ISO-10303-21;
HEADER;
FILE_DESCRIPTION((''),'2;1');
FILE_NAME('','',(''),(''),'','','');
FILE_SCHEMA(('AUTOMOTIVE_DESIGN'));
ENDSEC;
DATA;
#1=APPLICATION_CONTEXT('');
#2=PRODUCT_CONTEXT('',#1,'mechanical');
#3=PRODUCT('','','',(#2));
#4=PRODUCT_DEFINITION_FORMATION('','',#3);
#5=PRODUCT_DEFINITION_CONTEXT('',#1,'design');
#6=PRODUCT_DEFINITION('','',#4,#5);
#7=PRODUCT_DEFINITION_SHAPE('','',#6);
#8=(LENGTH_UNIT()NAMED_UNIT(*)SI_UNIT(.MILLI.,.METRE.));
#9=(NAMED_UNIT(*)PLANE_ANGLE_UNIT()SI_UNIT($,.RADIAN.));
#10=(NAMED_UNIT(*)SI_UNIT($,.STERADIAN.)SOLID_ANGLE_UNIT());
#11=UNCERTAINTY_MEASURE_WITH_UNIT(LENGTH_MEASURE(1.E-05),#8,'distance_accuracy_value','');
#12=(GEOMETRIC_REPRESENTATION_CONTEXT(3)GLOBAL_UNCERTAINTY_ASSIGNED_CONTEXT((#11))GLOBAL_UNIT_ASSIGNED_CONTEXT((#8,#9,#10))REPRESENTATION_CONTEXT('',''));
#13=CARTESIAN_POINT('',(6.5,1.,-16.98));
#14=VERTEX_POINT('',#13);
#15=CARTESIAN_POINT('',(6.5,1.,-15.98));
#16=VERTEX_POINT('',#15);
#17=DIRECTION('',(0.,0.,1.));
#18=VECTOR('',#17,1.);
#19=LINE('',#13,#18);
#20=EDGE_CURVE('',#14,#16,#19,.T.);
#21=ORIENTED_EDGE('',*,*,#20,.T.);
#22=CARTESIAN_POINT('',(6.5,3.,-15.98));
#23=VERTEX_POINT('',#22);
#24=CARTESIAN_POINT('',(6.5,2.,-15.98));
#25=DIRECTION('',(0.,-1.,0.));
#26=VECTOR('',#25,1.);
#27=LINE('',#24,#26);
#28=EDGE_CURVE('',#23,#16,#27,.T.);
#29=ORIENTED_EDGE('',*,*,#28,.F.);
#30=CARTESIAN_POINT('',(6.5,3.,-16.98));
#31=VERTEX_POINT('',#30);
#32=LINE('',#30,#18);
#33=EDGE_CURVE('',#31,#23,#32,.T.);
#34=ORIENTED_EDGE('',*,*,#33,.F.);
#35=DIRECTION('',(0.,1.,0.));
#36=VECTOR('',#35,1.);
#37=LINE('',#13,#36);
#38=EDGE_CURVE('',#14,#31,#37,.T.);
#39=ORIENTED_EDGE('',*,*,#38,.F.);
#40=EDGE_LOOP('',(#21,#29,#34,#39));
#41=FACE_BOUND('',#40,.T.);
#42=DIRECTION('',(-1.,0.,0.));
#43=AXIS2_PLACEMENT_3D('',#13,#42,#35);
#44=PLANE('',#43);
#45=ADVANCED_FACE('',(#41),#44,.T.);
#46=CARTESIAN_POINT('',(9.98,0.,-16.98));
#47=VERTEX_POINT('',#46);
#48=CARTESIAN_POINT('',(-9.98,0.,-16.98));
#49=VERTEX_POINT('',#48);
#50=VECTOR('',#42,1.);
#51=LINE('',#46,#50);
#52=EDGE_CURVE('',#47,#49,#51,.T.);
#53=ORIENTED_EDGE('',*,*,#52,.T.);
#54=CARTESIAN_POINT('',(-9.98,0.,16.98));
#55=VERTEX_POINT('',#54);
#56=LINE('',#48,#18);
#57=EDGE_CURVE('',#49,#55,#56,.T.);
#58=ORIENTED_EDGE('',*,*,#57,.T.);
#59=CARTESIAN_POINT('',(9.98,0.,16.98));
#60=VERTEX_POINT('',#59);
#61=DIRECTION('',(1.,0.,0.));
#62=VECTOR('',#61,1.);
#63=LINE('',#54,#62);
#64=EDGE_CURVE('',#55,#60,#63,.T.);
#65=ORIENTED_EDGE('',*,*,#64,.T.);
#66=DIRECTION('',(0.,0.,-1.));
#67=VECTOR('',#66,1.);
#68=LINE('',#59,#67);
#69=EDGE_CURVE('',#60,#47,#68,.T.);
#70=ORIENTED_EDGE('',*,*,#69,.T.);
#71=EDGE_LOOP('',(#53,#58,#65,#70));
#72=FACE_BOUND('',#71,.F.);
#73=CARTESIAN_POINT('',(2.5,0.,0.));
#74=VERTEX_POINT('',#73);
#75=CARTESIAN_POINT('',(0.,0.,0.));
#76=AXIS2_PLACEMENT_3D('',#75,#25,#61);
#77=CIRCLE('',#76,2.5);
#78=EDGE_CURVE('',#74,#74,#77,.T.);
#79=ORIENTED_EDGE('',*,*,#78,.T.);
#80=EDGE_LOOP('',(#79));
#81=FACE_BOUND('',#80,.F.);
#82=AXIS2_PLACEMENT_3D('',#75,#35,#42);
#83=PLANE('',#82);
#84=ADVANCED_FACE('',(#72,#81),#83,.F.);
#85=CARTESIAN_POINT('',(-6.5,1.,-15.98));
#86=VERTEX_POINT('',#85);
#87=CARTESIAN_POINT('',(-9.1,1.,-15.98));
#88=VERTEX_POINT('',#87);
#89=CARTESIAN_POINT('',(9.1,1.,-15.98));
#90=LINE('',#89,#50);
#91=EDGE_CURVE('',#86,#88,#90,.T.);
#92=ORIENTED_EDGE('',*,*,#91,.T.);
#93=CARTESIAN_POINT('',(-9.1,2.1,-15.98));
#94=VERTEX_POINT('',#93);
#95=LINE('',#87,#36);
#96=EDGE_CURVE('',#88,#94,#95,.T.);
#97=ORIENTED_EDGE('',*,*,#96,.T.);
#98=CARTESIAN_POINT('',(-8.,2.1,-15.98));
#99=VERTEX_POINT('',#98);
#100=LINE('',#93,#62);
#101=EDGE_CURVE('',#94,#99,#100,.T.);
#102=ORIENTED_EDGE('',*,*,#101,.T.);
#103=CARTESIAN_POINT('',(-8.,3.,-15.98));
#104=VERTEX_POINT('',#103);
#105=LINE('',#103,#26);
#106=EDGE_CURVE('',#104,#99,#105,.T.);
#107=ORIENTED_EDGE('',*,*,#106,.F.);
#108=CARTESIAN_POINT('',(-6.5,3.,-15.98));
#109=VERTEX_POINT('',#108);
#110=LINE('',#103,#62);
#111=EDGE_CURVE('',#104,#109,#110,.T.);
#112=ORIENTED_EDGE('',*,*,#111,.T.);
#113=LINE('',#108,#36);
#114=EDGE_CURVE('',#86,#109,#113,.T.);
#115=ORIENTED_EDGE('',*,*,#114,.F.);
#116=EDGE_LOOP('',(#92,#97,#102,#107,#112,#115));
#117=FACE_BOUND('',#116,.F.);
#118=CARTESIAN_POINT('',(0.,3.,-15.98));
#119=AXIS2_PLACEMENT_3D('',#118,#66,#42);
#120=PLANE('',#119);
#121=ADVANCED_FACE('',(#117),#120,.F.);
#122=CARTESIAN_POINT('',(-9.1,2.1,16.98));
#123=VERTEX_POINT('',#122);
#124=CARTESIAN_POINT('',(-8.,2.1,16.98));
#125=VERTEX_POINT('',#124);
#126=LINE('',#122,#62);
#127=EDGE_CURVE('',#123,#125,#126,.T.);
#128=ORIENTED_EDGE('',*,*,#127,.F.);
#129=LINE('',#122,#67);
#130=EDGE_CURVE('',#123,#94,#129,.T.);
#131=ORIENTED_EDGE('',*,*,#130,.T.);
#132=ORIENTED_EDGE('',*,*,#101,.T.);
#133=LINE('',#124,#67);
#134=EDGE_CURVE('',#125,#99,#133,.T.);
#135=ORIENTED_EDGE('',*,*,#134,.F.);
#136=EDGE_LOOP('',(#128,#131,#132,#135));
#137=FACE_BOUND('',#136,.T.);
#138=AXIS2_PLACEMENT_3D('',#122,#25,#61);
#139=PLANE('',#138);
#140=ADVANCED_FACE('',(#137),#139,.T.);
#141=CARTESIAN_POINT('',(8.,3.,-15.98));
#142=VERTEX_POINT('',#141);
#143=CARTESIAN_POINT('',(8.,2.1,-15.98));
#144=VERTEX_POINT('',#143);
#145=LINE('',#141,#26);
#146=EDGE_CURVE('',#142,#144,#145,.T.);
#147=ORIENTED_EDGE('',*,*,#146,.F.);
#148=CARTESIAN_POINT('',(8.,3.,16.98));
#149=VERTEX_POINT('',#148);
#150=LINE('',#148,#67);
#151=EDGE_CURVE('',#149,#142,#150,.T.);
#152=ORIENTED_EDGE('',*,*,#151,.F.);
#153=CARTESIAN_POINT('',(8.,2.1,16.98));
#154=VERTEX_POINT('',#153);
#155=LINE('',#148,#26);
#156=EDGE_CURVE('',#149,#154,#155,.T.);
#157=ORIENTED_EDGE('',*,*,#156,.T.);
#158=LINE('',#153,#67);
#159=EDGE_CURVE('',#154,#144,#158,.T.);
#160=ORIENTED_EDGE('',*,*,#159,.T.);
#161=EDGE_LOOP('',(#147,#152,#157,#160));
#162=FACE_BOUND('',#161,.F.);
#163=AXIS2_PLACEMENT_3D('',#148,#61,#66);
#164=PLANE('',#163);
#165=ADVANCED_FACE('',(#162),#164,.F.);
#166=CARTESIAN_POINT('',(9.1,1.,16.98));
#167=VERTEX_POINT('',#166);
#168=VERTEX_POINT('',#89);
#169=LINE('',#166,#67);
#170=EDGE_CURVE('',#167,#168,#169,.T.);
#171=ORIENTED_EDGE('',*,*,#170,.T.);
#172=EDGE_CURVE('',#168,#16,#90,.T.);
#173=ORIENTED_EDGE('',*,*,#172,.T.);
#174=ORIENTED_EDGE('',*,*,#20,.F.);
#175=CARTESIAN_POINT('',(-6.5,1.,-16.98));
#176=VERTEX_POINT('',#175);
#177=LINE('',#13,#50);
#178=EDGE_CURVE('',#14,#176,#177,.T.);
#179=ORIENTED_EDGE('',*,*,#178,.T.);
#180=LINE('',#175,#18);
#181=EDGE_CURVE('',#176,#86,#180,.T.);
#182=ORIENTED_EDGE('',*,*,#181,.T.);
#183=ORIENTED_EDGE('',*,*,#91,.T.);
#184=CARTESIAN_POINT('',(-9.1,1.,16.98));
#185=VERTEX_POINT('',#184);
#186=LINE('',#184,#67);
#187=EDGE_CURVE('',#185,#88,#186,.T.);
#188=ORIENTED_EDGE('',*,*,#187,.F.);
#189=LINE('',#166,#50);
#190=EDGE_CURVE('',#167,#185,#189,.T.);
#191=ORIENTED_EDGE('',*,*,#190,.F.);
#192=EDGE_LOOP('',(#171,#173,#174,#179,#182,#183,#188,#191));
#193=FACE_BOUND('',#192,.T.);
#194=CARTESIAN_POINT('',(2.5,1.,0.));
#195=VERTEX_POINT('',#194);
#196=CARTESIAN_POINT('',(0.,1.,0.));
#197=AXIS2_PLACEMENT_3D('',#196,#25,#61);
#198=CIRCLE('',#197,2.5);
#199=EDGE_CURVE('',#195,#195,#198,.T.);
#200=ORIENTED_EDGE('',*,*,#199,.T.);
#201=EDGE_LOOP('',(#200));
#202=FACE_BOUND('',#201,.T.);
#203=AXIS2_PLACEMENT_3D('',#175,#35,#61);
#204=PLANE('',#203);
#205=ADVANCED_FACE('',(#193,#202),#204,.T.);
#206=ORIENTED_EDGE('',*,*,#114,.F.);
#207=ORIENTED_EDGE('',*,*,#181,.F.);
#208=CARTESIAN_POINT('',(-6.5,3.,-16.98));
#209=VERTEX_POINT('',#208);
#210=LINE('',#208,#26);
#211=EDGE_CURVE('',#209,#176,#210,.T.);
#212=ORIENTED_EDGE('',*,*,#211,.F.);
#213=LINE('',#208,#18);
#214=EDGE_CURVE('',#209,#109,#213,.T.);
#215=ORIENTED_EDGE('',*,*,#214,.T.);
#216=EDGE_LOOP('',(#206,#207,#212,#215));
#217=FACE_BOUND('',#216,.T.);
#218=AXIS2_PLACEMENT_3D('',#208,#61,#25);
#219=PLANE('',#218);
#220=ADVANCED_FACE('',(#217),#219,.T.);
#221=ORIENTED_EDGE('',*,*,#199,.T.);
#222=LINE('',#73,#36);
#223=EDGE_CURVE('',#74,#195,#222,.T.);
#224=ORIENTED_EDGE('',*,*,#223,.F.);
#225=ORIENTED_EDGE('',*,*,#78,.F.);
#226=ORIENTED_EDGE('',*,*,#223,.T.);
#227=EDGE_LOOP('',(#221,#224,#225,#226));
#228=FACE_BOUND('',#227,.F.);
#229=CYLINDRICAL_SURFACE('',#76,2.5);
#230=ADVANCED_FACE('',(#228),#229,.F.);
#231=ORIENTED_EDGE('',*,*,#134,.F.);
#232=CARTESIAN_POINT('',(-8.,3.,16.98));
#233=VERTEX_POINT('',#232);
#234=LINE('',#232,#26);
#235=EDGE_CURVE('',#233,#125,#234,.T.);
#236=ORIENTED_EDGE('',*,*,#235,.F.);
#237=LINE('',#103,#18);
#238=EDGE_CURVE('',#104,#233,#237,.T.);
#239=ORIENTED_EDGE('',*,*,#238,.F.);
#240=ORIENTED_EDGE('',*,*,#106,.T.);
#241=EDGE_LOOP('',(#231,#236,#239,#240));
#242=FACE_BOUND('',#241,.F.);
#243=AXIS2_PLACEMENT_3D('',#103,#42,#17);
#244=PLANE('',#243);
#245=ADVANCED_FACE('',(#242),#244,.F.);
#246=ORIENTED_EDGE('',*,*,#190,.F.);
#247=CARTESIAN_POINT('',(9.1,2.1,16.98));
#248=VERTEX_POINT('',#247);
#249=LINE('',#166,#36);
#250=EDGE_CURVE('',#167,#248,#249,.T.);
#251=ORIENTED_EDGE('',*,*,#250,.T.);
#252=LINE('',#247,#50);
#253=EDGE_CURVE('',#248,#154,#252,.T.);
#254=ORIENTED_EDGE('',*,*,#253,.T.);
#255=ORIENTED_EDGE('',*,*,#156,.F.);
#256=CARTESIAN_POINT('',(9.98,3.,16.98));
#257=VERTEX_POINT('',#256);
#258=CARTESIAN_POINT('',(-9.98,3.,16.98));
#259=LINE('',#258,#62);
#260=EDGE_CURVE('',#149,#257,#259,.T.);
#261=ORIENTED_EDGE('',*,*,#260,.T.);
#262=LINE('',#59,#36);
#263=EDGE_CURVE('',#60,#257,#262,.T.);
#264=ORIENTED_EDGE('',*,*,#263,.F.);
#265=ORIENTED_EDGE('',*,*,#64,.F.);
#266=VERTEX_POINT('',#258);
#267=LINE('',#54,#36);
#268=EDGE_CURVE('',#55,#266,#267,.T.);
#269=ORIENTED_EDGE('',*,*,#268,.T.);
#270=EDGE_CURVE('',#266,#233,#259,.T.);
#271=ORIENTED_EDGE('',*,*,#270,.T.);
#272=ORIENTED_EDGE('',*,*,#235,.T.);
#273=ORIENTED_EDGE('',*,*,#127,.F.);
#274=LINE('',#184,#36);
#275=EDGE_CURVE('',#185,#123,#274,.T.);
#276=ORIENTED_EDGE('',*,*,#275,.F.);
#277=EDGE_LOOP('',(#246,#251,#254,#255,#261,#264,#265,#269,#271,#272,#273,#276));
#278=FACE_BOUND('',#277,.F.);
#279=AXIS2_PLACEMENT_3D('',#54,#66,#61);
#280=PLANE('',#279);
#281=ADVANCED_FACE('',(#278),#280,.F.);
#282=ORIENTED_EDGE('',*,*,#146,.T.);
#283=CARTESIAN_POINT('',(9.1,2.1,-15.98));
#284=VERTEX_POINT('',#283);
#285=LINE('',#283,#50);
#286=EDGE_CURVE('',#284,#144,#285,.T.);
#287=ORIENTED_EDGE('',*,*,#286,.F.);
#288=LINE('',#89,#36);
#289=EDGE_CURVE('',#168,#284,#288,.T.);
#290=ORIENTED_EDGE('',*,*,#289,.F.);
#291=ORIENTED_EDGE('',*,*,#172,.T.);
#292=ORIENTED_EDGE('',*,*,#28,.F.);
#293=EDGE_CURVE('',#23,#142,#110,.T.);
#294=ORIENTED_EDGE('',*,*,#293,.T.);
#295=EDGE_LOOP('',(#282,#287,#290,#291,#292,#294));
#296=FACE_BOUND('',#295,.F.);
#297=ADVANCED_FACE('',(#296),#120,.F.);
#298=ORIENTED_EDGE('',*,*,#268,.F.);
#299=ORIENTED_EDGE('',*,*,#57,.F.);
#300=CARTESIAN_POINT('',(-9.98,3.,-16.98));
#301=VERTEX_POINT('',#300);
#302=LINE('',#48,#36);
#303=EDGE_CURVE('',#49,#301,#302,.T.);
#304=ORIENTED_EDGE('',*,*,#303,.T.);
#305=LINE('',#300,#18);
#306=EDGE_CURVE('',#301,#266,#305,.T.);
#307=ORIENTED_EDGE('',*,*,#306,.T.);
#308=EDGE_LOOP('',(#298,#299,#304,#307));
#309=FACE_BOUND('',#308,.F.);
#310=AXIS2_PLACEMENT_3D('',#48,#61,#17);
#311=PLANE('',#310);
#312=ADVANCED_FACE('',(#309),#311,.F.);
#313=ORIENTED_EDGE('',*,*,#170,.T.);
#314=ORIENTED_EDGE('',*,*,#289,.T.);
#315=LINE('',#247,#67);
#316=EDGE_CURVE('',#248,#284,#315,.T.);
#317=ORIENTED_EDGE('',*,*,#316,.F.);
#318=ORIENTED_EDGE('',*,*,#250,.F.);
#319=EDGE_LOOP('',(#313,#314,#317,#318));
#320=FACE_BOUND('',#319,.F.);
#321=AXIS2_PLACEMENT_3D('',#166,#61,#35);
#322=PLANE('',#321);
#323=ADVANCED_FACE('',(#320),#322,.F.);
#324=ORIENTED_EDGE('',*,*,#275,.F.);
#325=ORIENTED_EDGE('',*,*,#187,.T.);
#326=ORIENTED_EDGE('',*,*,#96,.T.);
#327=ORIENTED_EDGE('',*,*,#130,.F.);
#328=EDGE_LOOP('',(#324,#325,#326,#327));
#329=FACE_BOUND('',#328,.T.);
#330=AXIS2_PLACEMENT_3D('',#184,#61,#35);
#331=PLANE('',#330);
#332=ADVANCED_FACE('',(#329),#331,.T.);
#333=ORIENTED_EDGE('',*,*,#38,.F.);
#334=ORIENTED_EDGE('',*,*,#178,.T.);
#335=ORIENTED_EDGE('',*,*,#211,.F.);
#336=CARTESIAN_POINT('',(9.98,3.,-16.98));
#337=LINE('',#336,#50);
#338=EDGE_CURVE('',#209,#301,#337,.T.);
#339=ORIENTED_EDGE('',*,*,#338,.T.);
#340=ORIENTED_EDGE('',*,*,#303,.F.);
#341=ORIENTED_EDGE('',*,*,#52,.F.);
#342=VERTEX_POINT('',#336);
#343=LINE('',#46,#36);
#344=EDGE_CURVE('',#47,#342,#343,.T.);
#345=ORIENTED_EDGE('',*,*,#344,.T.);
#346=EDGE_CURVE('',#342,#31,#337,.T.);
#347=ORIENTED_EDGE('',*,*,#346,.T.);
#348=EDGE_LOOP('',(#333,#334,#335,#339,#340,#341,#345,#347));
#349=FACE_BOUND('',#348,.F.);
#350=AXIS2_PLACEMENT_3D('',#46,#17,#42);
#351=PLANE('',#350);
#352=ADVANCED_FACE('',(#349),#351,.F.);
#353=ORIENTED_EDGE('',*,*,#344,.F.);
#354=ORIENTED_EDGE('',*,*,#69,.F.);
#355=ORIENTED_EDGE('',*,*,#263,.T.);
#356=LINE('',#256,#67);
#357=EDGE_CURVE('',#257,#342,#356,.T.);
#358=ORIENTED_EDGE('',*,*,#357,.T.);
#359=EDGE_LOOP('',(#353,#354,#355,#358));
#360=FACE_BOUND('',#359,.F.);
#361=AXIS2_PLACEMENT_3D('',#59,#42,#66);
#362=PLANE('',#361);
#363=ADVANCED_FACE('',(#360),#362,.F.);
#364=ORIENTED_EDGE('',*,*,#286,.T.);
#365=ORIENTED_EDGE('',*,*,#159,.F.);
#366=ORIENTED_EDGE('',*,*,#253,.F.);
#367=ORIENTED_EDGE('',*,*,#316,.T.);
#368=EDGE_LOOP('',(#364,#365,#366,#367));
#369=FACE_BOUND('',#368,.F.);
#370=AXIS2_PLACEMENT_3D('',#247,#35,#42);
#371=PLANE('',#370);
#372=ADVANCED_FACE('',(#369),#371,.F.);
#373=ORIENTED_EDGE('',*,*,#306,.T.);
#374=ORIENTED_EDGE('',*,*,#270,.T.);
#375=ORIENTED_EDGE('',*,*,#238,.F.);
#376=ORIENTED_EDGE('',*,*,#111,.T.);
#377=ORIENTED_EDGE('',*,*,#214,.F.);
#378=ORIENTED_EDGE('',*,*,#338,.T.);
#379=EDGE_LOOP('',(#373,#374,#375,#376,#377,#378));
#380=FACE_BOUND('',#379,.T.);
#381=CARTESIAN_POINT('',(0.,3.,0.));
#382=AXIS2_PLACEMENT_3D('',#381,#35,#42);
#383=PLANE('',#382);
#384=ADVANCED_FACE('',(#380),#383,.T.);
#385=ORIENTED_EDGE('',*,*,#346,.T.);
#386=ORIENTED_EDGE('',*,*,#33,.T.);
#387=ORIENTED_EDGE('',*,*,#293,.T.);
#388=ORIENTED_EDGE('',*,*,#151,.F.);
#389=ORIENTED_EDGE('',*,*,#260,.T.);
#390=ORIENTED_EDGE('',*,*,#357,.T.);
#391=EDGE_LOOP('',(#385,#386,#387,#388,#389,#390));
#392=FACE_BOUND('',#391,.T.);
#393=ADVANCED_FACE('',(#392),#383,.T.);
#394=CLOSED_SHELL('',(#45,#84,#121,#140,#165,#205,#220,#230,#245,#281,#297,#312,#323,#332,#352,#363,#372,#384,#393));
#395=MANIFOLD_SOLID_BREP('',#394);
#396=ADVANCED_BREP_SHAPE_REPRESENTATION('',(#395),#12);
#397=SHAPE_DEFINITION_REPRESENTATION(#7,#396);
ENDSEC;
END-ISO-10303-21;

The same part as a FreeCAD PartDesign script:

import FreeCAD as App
import Part
import Sketcher

doc = App.newDocument("Part")
body = doc.addObject("PartDesign::Body", "Body")

# Sketch on XZ plane
sketch1 = body.newObject("Sketcher::SketchObject", "Sketch")
sketch1.AttachmentSupport = (doc.getObject("XZ_Plane"), [""])
sketch1.MapMode = "FlatFace"
sketch1.addGeometry(Part.LineSegment(App.Vector(-10, -17, 0), App.Vector(-10, 17, 0)), False)
sketch1.addGeometry(Part.LineSegment(App.Vector(-10, 17, 0), App.Vector(10, 17, 0)), False)
sketch1.addGeometry(Part.LineSegment(App.Vector(10, 17, 0), App.Vector(10, -17, 0)), False)
sketch1.addGeometry(Part.LineSegment(App.Vector(10, -17, 0), App.Vector(-10, -17, 0)), False)
sketch1.addConstraint(Sketcher.Constraint("Coincident", 0, 2, 1, 1))
sketch1.addConstraint(Sketcher.Constraint("Coincident", 1, 2, 2, 1))
sketch1.addConstraint(Sketcher.Constraint("Coincident", 2, 2, 3, 1))
sketch1.addConstraint(Sketcher.Constraint("Coincident", 3, 2, 0, 1))
sketch1.addConstraint(Sketcher.Constraint("Vertical", 0))
sketch1.addConstraint(Sketcher.Constraint("Horizontal", 1))
sketch1.addConstraint(Sketcher.Constraint("Vertical", 2))
sketch1.addConstraint(Sketcher.Constraint("Horizontal", 3))
sketch1.addConstraint(Sketcher.Constraint("Symmetric", 0, 2, 2, 2, -1, 1))
sketch1.addConstraint(Sketcher.Constraint("DistanceX", 1, 1, 1, 2, 19.96))
sketch1.addConstraint(Sketcher.Constraint("DistanceY", 0, 1, 0, 2, 33.96))
pad1 = body.newObject("PartDesign::Pad", "Pad")
pad1.Profile = sketch1
pad1.Length = 3
pad1.Reversed = True

# Sketch on XZ plane
sketch2 = body.newObject("Sketcher::SketchObject", "Sketch001")
sketch2.AttachmentSupport = (doc.getObject("XZ_Plane"), [""])
sketch2.MapMode = "FlatFace"
sketch2.AttachmentOffset = App.Placement(App.Vector(0, 0, -3), App.Rotation())
sketch2.addGeometry(Part.LineSegment(App.Vector(-8, -16, 0), App.Vector(-8, 17, 0)), False)
sketch2.addGeometry(Part.LineSegment(App.Vector(-8, 17, 0), App.Vector(8, 17, 0)), False)
sketch2.addGeometry(Part.LineSegment(App.Vector(8, 17, 0), App.Vector(8, -16, 0)), False)
sketch2.addGeometry(Part.LineSegment(App.Vector(8, -16, 0), App.Vector(-8, -16, 0)), False)
sketch2.addConstraint(Sketcher.Constraint("Coincident", 0, 2, 1, 1))
sketch2.addConstraint(Sketcher.Constraint("Coincident", 1, 2, 2, 1))
sketch2.addConstraint(Sketcher.Constraint("Coincident", 2, 2, 3, 1))
sketch2.addConstraint(Sketcher.Constraint("Coincident", 3, 2, 0, 1))
sketch2.addConstraint(Sketcher.Constraint("Vertical", 0))
sketch2.addConstraint(Sketcher.Constraint("Horizontal", 1))
sketch2.addConstraint(Sketcher.Constraint("Vertical", 2))
sketch2.addConstraint(Sketcher.Constraint("Horizontal", 3))
sketch2.addConstraint(Sketcher.Constraint("DistanceX", 1, 1, 1, 2, 16.0))
sketch2.addConstraint(Sketcher.Constraint("DistanceX", 0, 2, -1, 1, 8.0))
sketch2.addConstraint(Sketcher.Constraint("DistanceY", 0, 1, 0, 2, 32.96))
sketch2.addConstraint(Sketcher.Constraint("DistanceY", -1, 1, 0, 2, 16.98))
pocket1 = body.newObject("PartDesign::Pocket", "Pocket")
pocket1.Profile = sketch2
pocket1.Length = 2
pocket1.Reversed = True

# Sketch on XZ plane
sketch3 = body.newObject("Sketcher::SketchObject", "Sketch002")
sketch3.AttachmentSupport = (doc.getObject("XZ_Plane"), [""])
sketch3.MapMode = "FlatFace"
sketch3.addGeometry(Part.Circle(App.Vector(0, 0, 0), App.Vector(0, 0, 1), 2.5), False)
sketch3.addConstraint(Sketcher.Constraint("Coincident", 0, 3, -1, 1))
sketch3.addConstraint(Sketcher.Constraint("Diameter", 0, 5.0))
pocket2 = body.newObject("PartDesign::Pocket", "Pocket001")
pocket2.Profile = sketch3
pocket2.Length = 2

# Sketch on XY plane
sketch4 = body.newObject("Sketcher::SketchObject", "Sketch003")
sketch4.AttachmentSupport = (doc.getObject("XY_Plane"), [""])
sketch4.MapMode = "FlatFace"
sketch4.AttachmentOffset = App.Placement(App.Vector(0, 0, 16.98), App.Rotation())
sketch4.addGeometry(Part.LineSegment(App.Vector(-9.1, 1, 0), App.Vector(-8, 1, 0)), False)
sketch4.addGeometry(Part.LineSegment(App.Vector(-8, 1, 0), App.Vector(-8, 2.1, 0)), False)
sketch4.addGeometry(Part.LineSegment(App.Vector(-8, 2.1, 0), App.Vector(-9.1, 2.1, 0)), False)
sketch4.addGeometry(Part.LineSegment(App.Vector(-9.1, 2.1, 0), App.Vector(-9.1, 1, 0)), False)
sketch4.addGeometry(Part.LineSegment(App.Vector(8, 2.1, 0), App.Vector(8, 1, 0)), False)
sketch4.addGeometry(Part.LineSegment(App.Vector(8, 1, 0), App.Vector(9.1, 1, 0)), False)
sketch4.addGeometry(Part.LineSegment(App.Vector(9.1, 1, 0), App.Vector(9.1, 2.1, 0)), False)
sketch4.addGeometry(Part.LineSegment(App.Vector(9.1, 2.1, 0), App.Vector(8, 2.1, 0)), False)
sketch4.addConstraint(Sketcher.Constraint("Coincident", 0, 2, 1, 1))
sketch4.addConstraint(Sketcher.Constraint("Coincident", 1, 2, 2, 1))
sketch4.addConstraint(Sketcher.Constraint("Coincident", 2, 2, 3, 1))
sketch4.addConstraint(Sketcher.Constraint("Coincident", 3, 2, 0, 1))
sketch4.addConstraint(Sketcher.Constraint("Coincident", 4, 2, 5, 1))
sketch4.addConstraint(Sketcher.Constraint("Coincident", 5, 2, 6, 1))
sketch4.addConstraint(Sketcher.Constraint("Coincident", 6, 2, 7, 1))
sketch4.addConstraint(Sketcher.Constraint("Coincident", 7, 2, 4, 1))
sketch4.addConstraint(Sketcher.Constraint("Horizontal", 0))
sketch4.addConstraint(Sketcher.Constraint("Vertical", 1))
sketch4.addConstraint(Sketcher.Constraint("Horizontal", 2))
sketch4.addConstraint(Sketcher.Constraint("Vertical", 3))
sketch4.addConstraint(Sketcher.Constraint("Vertical", 4))
sketch4.addConstraint(Sketcher.Constraint("Horizontal", 5))
sketch4.addConstraint(Sketcher.Constraint("Vertical", 6))
sketch4.addConstraint(Sketcher.Constraint("Horizontal", 7))
sketch4.addConstraint(Sketcher.Constraint("Symmetric", 0, 2, 4, 2, -2))
sketch4.addConstraint(Sketcher.Constraint("Symmetric", 2, 2, 6, 2, -2))
sketch4.addConstraint(Sketcher.Constraint("Equal", 7, 1))
sketch4.addConstraint(Sketcher.Constraint("DistanceX", 0, 1, 0, 2, 1.1))
sketch4.addConstraint(Sketcher.Constraint("DistanceX", 0, 2, -1, 1, 8.0))
sketch4.addConstraint(Sketcher.Constraint("DistanceY", -1, 1, 0, 2, 1.0))
pocket3 = body.newObject("PartDesign::Pocket", "Pocket002")
pocket3.Profile = sketch4
pocket3.Length = 32.96

# Sketch on XY plane
sketch5 = body.newObject("Sketcher::SketchObject", "Sketch004")
sketch5.AttachmentSupport = (doc.getObject("XY_Plane"), [""])
sketch5.MapMode = "FlatFace"
sketch5.AttachmentOffset = App.Placement(App.Vector(0, 0, -16.98), App.Rotation())
sketch5.addGeometry(Part.LineSegment(App.Vector(-6.5, 3, 0), App.Vector(6.5, 3, 0)), False)
sketch5.addGeometry(Part.LineSegment(App.Vector(6.5, 3, 0), App.Vector(6.5, 1, 0)), False)
sketch5.addGeometry(Part.LineSegment(App.Vector(6.5, 1, 0), App.Vector(-6.5, 1, 0)), False)
sketch5.addGeometry(Part.LineSegment(App.Vector(-6.5, 1, 0), App.Vector(-6.5, 3, 0)), False)
sketch5.addConstraint(Sketcher.Constraint("Coincident", 0, 2, 1, 1))
sketch5.addConstraint(Sketcher.Constraint("Coincident", 1, 2, 2, 1))
sketch5.addConstraint(Sketcher.Constraint("Coincident", 2, 2, 3, 1))
sketch5.addConstraint(Sketcher.Constraint("Coincident", 3, 2, 0, 1))
sketch5.addConstraint(Sketcher.Constraint("Horizontal", 0))
sketch5.addConstraint(Sketcher.Constraint("Vertical", 1))
sketch5.addConstraint(Sketcher.Constraint("Horizontal", 2))
sketch5.addConstraint(Sketcher.Constraint("Vertical", 3))
sketch5.addConstraint(Sketcher.Constraint("DistanceX", 0, 1, 0, 2, 13.0))
sketch5.addConstraint(Sketcher.Constraint("DistanceY", -1, 1, 1, 2, 1.0))
sketch5.addConstraint(Sketcher.Constraint("DistanceY", 1, 2, 1, 1, 2.0))
sketch5.addConstraint(Sketcher.Constraint("DistanceX", -1, 1, 0, 2, 6.5))
pocket4 = body.newObject("PartDesign::Pocket", "Pocket003")
pocket4.Profile = sketch5
pocket4.Type = "UpToFirst"
pocket4.Reversed = True

doc.recompute()
